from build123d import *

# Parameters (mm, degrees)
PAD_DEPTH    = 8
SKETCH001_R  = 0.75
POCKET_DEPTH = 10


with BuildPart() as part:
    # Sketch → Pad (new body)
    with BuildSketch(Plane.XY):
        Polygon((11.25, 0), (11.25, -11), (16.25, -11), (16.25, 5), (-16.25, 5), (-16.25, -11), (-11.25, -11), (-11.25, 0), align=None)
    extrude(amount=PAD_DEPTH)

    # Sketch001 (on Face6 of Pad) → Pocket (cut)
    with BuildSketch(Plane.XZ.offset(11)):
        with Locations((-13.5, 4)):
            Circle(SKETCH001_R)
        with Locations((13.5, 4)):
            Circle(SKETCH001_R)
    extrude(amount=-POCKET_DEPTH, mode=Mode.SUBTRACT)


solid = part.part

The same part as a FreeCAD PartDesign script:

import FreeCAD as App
import Part
import Sketcher
from FreeCAD import Vector
Q = App.Units.Quantity


def add_polygon(sketch, points):
    """Adds a closed chain of lines whose ends are joined by coincident constraints."""
    first, n = sketch.GeometryCount, len(points)
    for a, b in zip(points, points[1:] + points[:1]):
        sketch.addGeometry(Part.LineSegment(App.Vector(*a, 0), App.Vector(*b, 0)), False)
    for i in range(n):
        sketch.addConstraint(Sketcher.Constraint("Coincident", first + i, 2, first + (i + 1) % n, 1))

doc = App.newDocument("Part")
params = doc.addObject("Spreadsheet::Sheet", "Params")
for row, (alias, value) in enumerate([
    ("sketch1_width", "5 mm"),
    ("sketch1_height", "11 mm"),
    ("sketch1_height2", "16 mm"),
    ("sketch1_width2", "32.5 mm"),
    ("pad1_length", "8 mm"),
    ("sketch2_diameter", "1.5 mm"),
    ("pocket1_length", "10 mm"),
], start=1):
    params.set(f"A{row}", alias)
    params.set(f"B{row}", "=" + value)
    params.setAlias(f"B{row}", alias)

body = doc.addObject("PartDesign::Body", "Body")

# Sketch on XY plane
sketch1 = doc.addObject("Sketcher::SketchObject", "Sketch")
body.addObject(sketch1)
sketch1.AttachmentSupport = (doc.XY_Plane, [""])
sketch1.MapMode = "FlatFace"
add_polygon(sketch1, [(11, 0), (11, -11), (16, -11), (16, 5), (-16, 5), (-16, -11), (-11, -11), (-11, 0)])  # lines 0-7
sketch1.addConstraint([
    Sketcher.Constraint("Vertical", 0),
    Sketcher.Constraint("Horizontal", 1),
    Sketcher.Constraint("Vertical", 2),
    Sketcher.Constraint("Horizontal", 3),
    Sketcher.Constraint("Vertical", 4),
    Sketcher.Constraint("Horizontal", 5),
    Sketcher.Constraint("Vertical", 6),
    Sketcher.Constraint("Horizontal", 7),
    Sketcher.Constraint("Symmetric", 6, 2, 7, 2, -1, 1),
    Sketcher.Constraint("Symmetric", 1, 2, 4, 2, -2),
    Sketcher.Constraint("DistanceX", 1, 1, 1, 2, Q("5 mm")),
    Sketcher.Constraint("DistanceY", 0, 2, 0, 1, Q("11 mm")),
    Sketcher.Constraint("DistanceY", 2, 1, 2, 2, Q("16 mm")),
    Sketcher.Constraint("DistanceX", 3, 2, 3, 1, Q("32.5 mm")),
])
sketch1.setExpression("Constraints[18]", "Params.sketch1_width")
sketch1.setExpression("Constraints[19]", "Params.sketch1_height")
sketch1.setExpression("Constraints[20]", "Params.sketch1_height2")
sketch1.setExpression("Constraints[21]", "Params.sketch1_width2")
pad1 = doc.addObject("PartDesign::Pad", "Pad")
body.addObject(pad1)
pad1.Profile = sketch1
pad1.setExpression("Length", "Params.pad1_length")

# Sketch on XZ plane
sketch2 = doc.addObject("Sketcher::SketchObject", "Sketch001")
body.addObject(sketch2)
sketch2.AttachmentSupport = (doc.XZ_Plane, [""])
sketch2.MapMode = "FlatFace"
sketch2.AttachmentOffset = App.Placement(Vector(0, 0, 11), App.Rotation())
sketch2.addGeometry([
    Part.Circle(Vector(-13.5, 4, 0), Vector(0, 0, 1), 0.8),
    Part.Circle(Vector(13.5, 4, 0), Vector(0, 0, 1), 0.8),
], False)
sketch2.addConstraint([
    Sketcher.Constraint("Equal", 0, 1),
    Sketcher.Constraint("Symmetric", 0, 3, 1, 3, -2),
    Sketcher.Constraint("Diameter", 0, Q("1.5 mm")),
    Sketcher.Constraint("DistanceY", -1, 1, 0, 3, Q("4 mm")),
    Sketcher.Constraint("DistanceX", 0, 3, 1, 3, Q("27 mm")),
])
sketch2.setExpression("Constraints[2]", "Params.sketch2_diameter")
pocket1 = doc.addObject("PartDesign::Pocket", "Pocket")
body.addObject(pocket1)
pocket1.Profile = sketch2
pocket1.setExpression("Length", "Params.pocket1_length")

doc.recompute()
